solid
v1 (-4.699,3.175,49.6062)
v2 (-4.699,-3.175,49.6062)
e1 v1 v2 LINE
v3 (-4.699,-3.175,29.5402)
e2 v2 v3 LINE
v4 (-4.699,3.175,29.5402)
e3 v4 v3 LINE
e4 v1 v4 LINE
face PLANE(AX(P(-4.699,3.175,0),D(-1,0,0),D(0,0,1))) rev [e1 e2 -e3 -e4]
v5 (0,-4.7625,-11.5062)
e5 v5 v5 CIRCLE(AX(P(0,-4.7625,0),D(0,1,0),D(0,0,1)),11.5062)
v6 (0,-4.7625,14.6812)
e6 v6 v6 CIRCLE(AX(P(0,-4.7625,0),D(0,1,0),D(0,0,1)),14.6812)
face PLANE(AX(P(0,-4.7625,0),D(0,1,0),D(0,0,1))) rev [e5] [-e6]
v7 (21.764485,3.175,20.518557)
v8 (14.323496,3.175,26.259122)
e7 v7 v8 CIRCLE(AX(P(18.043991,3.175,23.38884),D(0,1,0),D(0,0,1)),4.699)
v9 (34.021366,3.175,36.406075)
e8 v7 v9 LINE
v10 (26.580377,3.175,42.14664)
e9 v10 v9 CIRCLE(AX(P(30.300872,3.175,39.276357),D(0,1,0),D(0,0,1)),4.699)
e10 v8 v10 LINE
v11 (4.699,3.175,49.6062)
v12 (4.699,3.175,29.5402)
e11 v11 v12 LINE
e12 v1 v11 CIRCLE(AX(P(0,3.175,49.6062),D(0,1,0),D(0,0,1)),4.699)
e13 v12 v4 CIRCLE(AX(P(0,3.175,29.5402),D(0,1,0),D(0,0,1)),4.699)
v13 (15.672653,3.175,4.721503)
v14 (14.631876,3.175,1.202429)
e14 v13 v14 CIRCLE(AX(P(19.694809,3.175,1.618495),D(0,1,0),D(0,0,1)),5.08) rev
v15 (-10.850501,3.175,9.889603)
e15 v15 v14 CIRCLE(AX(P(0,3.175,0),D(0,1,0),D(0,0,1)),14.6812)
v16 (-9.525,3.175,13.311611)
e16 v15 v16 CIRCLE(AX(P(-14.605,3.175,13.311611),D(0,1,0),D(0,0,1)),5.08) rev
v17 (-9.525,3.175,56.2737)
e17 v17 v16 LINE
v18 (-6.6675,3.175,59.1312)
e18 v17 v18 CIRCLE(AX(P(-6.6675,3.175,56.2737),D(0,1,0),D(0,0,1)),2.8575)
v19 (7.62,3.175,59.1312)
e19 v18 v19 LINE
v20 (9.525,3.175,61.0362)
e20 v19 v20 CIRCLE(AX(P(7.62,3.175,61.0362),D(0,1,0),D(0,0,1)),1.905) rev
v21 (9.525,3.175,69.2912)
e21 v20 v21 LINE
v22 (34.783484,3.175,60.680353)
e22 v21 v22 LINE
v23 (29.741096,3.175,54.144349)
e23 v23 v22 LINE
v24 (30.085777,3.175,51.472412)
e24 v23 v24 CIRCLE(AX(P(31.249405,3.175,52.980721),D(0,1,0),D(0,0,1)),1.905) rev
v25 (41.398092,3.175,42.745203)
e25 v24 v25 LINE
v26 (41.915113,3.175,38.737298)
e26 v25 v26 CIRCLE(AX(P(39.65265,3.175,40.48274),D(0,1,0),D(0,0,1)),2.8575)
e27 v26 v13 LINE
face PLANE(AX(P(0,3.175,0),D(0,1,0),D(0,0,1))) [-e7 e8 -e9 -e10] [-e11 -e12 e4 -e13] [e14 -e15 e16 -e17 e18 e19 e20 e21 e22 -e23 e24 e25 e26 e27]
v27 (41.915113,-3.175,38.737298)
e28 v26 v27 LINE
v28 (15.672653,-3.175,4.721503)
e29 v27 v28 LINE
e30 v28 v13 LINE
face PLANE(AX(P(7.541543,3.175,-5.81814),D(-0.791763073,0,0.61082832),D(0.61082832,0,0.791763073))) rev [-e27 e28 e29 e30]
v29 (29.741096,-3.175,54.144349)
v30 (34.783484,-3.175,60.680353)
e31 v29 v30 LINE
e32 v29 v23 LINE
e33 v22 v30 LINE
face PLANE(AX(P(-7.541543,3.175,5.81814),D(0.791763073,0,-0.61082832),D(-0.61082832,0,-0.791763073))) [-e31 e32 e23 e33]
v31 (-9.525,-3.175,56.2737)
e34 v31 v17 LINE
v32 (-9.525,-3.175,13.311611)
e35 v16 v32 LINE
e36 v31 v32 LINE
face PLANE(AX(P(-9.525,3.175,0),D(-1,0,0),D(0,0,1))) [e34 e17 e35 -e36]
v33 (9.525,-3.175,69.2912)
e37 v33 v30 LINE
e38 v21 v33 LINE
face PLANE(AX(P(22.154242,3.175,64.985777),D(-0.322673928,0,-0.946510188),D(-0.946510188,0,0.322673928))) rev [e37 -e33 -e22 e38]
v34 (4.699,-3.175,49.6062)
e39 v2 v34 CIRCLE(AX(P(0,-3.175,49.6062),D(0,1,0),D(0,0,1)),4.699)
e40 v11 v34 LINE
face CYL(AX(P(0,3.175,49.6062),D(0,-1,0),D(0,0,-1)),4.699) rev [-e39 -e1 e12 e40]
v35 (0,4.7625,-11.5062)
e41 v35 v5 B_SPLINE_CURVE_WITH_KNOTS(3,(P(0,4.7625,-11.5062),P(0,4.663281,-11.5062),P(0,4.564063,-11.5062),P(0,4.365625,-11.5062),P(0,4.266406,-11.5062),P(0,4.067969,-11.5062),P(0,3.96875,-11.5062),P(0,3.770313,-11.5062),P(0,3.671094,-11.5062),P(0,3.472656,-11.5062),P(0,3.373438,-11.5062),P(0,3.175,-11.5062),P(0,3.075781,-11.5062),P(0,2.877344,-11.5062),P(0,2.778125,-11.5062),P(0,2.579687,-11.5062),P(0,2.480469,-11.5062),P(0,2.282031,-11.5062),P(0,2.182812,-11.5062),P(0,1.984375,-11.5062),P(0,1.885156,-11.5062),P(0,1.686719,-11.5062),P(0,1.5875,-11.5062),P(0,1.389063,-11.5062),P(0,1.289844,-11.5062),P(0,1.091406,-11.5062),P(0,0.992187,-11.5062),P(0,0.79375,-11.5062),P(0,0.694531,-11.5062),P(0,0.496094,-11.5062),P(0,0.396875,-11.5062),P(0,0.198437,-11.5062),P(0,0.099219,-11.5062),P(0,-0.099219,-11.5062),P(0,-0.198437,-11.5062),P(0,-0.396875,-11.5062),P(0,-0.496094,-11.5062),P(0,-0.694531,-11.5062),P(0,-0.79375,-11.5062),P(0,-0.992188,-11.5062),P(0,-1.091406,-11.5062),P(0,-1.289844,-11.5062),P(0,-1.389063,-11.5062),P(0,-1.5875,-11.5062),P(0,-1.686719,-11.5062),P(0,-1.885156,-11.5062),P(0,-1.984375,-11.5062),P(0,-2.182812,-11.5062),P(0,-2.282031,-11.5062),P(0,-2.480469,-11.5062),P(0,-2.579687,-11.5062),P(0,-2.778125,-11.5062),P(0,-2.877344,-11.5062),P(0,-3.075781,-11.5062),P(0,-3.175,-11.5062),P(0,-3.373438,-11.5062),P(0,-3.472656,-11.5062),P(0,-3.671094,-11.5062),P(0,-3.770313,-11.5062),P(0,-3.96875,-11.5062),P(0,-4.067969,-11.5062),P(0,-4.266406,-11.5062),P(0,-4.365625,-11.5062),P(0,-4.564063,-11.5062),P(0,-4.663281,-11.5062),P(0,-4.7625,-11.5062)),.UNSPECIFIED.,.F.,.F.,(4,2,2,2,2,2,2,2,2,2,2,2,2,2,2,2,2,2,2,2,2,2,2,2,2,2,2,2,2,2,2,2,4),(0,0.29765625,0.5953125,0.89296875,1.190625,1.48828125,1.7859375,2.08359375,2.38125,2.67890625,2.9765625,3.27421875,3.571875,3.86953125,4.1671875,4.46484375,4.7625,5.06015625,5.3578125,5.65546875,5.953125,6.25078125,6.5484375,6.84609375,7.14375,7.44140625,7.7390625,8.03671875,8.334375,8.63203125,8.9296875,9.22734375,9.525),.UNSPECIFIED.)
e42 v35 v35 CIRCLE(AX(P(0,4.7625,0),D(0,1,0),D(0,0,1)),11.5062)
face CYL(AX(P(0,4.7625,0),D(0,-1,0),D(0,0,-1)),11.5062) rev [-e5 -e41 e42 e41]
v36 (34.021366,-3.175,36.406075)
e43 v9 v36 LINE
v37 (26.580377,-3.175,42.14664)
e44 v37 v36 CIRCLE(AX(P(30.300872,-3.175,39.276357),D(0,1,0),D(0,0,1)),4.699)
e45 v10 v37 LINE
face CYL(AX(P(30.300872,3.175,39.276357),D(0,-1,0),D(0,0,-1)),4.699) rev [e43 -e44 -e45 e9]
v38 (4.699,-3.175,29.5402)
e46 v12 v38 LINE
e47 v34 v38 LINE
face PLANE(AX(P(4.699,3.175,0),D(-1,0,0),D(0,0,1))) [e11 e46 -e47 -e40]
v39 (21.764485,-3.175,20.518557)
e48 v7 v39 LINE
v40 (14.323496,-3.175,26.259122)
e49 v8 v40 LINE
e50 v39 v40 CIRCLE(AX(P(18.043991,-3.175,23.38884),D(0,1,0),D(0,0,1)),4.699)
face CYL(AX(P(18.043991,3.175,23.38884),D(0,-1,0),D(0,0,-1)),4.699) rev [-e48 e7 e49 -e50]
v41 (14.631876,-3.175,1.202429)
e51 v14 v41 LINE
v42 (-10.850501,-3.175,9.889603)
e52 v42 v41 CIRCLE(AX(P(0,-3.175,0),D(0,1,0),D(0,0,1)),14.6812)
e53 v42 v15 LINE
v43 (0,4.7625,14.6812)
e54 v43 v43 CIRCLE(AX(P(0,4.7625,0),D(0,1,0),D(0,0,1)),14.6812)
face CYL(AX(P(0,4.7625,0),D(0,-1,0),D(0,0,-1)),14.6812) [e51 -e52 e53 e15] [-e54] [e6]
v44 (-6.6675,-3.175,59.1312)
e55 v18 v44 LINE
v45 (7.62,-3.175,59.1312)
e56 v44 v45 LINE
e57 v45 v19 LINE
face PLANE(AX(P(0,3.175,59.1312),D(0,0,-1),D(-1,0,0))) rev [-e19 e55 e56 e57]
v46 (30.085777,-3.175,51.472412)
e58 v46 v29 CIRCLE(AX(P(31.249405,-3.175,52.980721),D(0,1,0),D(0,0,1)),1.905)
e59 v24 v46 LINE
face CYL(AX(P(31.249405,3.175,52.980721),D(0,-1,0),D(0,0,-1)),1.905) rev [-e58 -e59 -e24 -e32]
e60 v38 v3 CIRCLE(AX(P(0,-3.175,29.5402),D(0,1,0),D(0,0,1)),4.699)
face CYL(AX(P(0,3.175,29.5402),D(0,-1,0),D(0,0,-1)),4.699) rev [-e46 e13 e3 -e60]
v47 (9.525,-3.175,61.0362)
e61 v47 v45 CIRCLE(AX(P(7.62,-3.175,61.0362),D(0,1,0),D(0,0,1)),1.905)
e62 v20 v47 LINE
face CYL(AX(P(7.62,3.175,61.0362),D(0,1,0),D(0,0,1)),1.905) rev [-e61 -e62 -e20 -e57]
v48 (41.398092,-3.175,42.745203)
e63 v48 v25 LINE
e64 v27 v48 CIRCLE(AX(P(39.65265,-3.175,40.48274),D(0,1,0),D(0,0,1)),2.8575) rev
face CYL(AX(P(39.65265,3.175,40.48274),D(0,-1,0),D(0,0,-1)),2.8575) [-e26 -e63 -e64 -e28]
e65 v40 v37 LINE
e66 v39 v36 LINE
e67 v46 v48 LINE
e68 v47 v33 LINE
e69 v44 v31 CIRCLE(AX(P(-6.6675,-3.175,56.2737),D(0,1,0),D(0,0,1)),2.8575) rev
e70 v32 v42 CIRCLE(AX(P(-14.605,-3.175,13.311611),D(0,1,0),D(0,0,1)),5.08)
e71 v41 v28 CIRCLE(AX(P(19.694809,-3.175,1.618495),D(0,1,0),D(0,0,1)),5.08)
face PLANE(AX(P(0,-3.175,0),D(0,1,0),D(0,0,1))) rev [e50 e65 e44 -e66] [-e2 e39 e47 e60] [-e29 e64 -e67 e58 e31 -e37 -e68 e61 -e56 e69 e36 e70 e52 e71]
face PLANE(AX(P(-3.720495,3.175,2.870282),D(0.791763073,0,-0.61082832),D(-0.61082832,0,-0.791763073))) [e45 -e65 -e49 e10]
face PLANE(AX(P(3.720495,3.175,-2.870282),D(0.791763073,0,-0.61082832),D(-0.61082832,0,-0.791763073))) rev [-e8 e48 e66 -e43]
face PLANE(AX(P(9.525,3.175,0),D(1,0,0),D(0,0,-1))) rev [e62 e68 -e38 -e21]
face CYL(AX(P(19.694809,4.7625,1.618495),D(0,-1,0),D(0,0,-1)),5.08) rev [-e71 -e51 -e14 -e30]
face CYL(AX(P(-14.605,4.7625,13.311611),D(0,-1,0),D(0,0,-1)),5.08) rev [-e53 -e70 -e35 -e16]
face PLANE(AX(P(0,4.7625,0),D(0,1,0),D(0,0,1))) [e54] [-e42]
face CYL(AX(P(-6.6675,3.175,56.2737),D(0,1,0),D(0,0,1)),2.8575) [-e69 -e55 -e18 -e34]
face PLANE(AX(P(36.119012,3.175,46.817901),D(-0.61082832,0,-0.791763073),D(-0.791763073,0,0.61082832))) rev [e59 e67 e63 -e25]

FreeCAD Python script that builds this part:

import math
import FreeCAD as App
import Part
import Sketcher
from FreeCAD import Vector
Q = App.Units.Quantity


def edges_at(feature, points):
    """Names of the edges that pass closest to the given points."""
    edges = feature.Shape.Edges
    near = lambda p: min(range(len(edges)), key=lambda i: edges[i].distToShape(Part.Vertex(*p))[0])
    return sorted({f"Edge{near(p) + 1}" for p in points})

doc = App.newDocument("Part")
params = doc.addObject("Spreadsheet::Sheet", "Params")
for row, (alias, value) in enumerate([
    ("sketch1_diameter", "1.156 in"),
    ("sketch1_diameter2", "0.906 in"),
    ("pad1_length", "0.375 in"),
    ("sketch2_height", "0.4 in"),
    ("sketch2_radius", "0.578 in"),
    ("sketch2_radius2", "0.185 in"),
    ("sketch2_length", "0.4 in"),
    ("sketch2_width", "0.75 in"),
    ("pad2_length", "0.25 in"),
    ("fillet_radius", "0.2 in"),
    ("fillet2_radius", "0.075 in"),
    ("fillet3_radius", "0.1125 in"),
], start=1):
    params.set(f"A{row}", alias)
    params.set(f"B{row}", "=" + value)
    params.setAlias(f"B{row}", alias)

body = doc.addObject("PartDesign::Body", "Body")

# Sketch on XZ plane
sketch1 = body.newObject("Sketcher::SketchObject", "Sketch")
sketch1.AttachmentSupport = (doc.getObject("XZ_Plane"), [""])
sketch1.MapMode = "FlatFace"
sketch1.addGeometry(Part.Circle(Vector(0, 0, 0), Vector(0, 0, 1), 15), False)
sketch1.addGeometry(Part.Circle(Vector(0, 0, 0), Vector(0, 0, 1), 12), False)
sketch1.addConstraint(Sketcher.Constraint("Coincident", 0, 3, -1, 1))
sketch1.addConstraint(Sketcher.Constraint("Coincident", 1, 3, -1, 1))
sketch1.addConstraint(Sketcher.Constraint("Diameter", 0, Q("1.156 in")))
sketch1.addConstraint(Sketcher.Constraint("Diameter", 1, Q("0.906 in")))
sketch1.setExpression("Constraints[2]", "Params.sketch1_diameter")
sketch1.setExpression("Constraints[3]", "Params.sketch1_diameter2")
pad1 = body.newObject("PartDesign::Pad", "Pad")
pad1.Profile = sketch1
pad1.setExpression("Length", "Params.pad1_length")
pad1.Midplane = True

# Sketch on XZ plane
sketch2 = body.newObject("Sketcher::SketchObject", "Sketch001")
sketch2.AttachmentSupport = (doc.getObject("XZ_Plane"), [""])
sketch2.MapMode = "FlatFace"
sketch2.addGeometry(Part.LineSegment(Vector(-9.5, 11.2, 0), Vector(-9.5, 59.1, 0)), False)
sketch2.addGeometry(Part.LineSegment(Vector(-9.5, 59.1, 0), Vector(9.5, 59.1, 0)), False)
sketch2.addGeometry(Part.LineSegment(Vector(9.5, 59.1, 0), Vector(9.5, 69.3, 0)), False)
sketch2.addGeometry(Part.LineSegment(Vector(9.5, 69.3, 0), Vector(34.8, 60.7, 0)), False)
sketch2.addGeometry(Part.LineSegment(Vector(34.8, 60.7, 0), Vector(28.6, 52.6, 0)), False)
sketch2.addGeometry(Part.LineSegment(Vector(28.6, 52.6, 0), Vector(36.1, 46.8, 0)), False)
sketch2.addGeometry(Part.LineSegment(Vector(36.1, 46.8, 0), Vector(43.7, 41, 0)), False)
sketch2.addGeometry(Part.LineSegment(Vector(43.7, 41, 0), Vector(14.4, 3, 0)), False)
sketch2.addGeometry(Part.ArcOfCircle(Part.Circle(Vector(0, 0, 0), Vector(0, 0, 1), 14.7), math.radians(12), math.radians(130)), False)
sketch2.addGeometry(Part.LineSegment(Vector(4.7, 29.5, 0), Vector(4.7, 49.6, 0)), False)
sketch2.addGeometry(Part.ArcOfCircle(Part.Circle(Vector(0, 49.6, 0), Vector(0, 0, 1), 4.7), math.radians(0), math.radians(180)), False)
sketch2.addGeometry(Part.LineSegment(Vector(-4.7, 49.6, 0), Vector(-4.7, 29.5, 0)), False)
sketch2.addGeometry(Part.ArcOfCircle(Part.Circle(Vector(0, 29.5, 0), Vector(0, 0, 1), 4.7), math.radians(180), math.radians(360)), False)
sketch2.addGeometry(Part.LineSegment(Vector(21.8, 20.5, 0), Vector(34, 36.4, 0)), False)
sketch2.addGeometry(Part.ArcOfCircle(Part.Circle(Vector(30.3, 39.3, 0), Vector(0, 0, 1), 4.7), math.radians(-38), math.radians(52)), False)
sketch2.addGeometry(Part.ArcOfCircle(Part.Circle(Vector(30.3, 39.3, 0), Vector(0, 0, 1), 4.7), math.radians(52), math.radians(142)), False)
sketch2.addGeometry(Part.LineSegment(Vector(26.6, 42.1, 0), Vector(14.3, 26.3, 0)), False)
sketch2.addGeometry(Part.ArcOfCircle(Part.Circle(Vector(18, 23.4, 0), Vector(0, 0, 1), 4.7), math.radians(142), math.radians(322)), False)
sketch2.addConstraint(Sketcher.Constraint("Coincident", 0, 2, 1, 1))
sketch2.addConstraint(Sketcher.Constraint("Coincident", 1, 2, 2, 1))
sketch2.addConstraint(Sketcher.Constraint("Coincident", 2, 2, 3, 1))
sketch2.addConstraint(Sketcher.Constraint("Coincident", 3, 2, 4, 1))
sketch2.addConstraint(Sketcher.Constraint("Coincident", 4, 2, 5, 1))
sketch2.addConstraint(Sketcher.Constraint("Coincident", 5, 2, 6, 1))
sketch2.addConstraint(Sketcher.Constraint("Coincident", 6, 2, 7, 1))
sketch2.addConstraint(Sketcher.Constraint("Coincident", 7, 2, 8, 1))
sketch2.addConstraint(Sketcher.Constraint("Coincident", 8, 2, 0, 1))
sketch2.addConstraint(Sketcher.Constraint("Tangent", 9, 2, 10, 1))
sketch2.addConstraint(Sketcher.Constraint("Tangent", 10, 2, 11, 1))
sketch2.addConstraint(Sketcher.Constraint("Tangent", 11, 2, 12, 1))
sketch2.addConstraint(Sketcher.Constraint("Tangent", 12, 2, 9, 1))
sketch2.addConstraint(Sketcher.Constraint("Tangent", 13, 2, 14, 1))
sketch2.addConstraint(Sketcher.Constraint("Tangent", 14, 2, 15, 1))
sketch2.addConstraint(Sketcher.Constraint("Tangent", 15, 2, 16, 1))
sketch2.addConstraint(Sketcher.Constraint("Tangent", 16, 2, 17, 1))
sketch2.addConstraint(Sketcher.Constraint("Tangent", 17, 2, 13, 1))
sketch2.addConstraint(Sketcher.Constraint("Vertical", 0))
sketch2.addConstraint(Sketcher.Constraint("Horizontal", 1))
sketch2.addConstraint(Sketcher.Constraint("Vertical", 2))
sketch2.addConstraint(Sketcher.Constraint("Vertical", 9))
sketch2.addConstraint(Sketcher.Constraint("Vertical", 11))
sketch2.addConstraint(Sketcher.Constraint("Coincident", 8, 3, -1, 1))
sketch2.addConstraint(Sketcher.Constraint("Equal", 12, 14))
sketch2.addConstraint(Sketcher.Constraint("Equal", 14, 15))
sketch2.addConstraint(Sketcher.Constraint("Equal", 15, 17))
sketch2.addConstraint(Sketcher.Constraint("PointOnObject", 10, 3, -2))
sketch2.addConstraint(Sketcher.Constraint("Perpendicular", 4, 5))
sketch2.addConstraint(Sketcher.Constraint("Parallel", 5, 6))
sketch2.addConstraint(Sketcher.Constraint("Perpendicular", 6, 7))
sketch2.addConstraint(Sketcher.Constraint("Parallel", 7, 13))
sketch2.addConstraint(Sketcher.Constraint("Equal", 5, 6))
sketch2.addConstraint(Sketcher.Constraint("DistanceY", 2, 1, 2, 2, Q("0.4 in")))
sketch2.addConstraint(Sketcher.Constraint("Radius", 8, Q("0.578 in")))
sketch2.addConstraint(Sketcher.Constraint("Radius", 10, Q("0.185 in")))
sketch2.addConstraint(Sketcher.Constraint("Distance", 4, Q("0.4 in")))
sketch2.addConstraint(Sketcher.Constraint("DistanceX", 1, 1, 1, 2, Q("0.75 in")))
sketch2.addConstraint(Sketcher.Constraint("DistanceY", 9, 1, 9, 2, Q("0.79 in")))
sketch2.addConstraint(Sketcher.Constraint("Distance", 13, Q("0.79 in")))
sketch2.addConstraint(Sketcher.Constraint("DistanceX", 9, 2, 1, 2, Q("0.19 in")))
sketch2.addConstraint(Sketcher.Constraint("Distance", 5, Q("0.375 in")))
sketch2.addConstraint(Sketcher.Constraint("DistanceY", -1, 1, 10, 3, Q("1.953 in")))
sketch2.addConstraint(Sketcher.Constraint("DistanceY", -1, 1, 0, 2, Q("2.328 in")))
sketch2.addConstraint(Sketcher.Constraint("DistanceY", -1, 1, 5, 2, Q("46.817901 mm")))
sketch2.addConstraint(Sketcher.Constraint("DistanceX", 4, 2, 13, 2, Q("5.443898 mm")))
sketch2.addConstraint(Sketcher.Constraint("Distance", 3, Q("26.685908 mm")))
sketch2.addConstraint(Sketcher.Constraint("Distance", 7, Q("47.959271 mm")))
sketch2.addConstraint(Sketcher.Constraint("DistanceY", -1, 1, 17, 3, Q("23.38884 mm")))
sketch2.addConstraint(Sketcher.Constraint("DistanceY", 14, 2, 5, 2, Q("3.821049 mm")))
sketch2.setExpression("Constraints[33]", "Params.sketch2_height")
sketch2.setExpression("Constraints[34]", "Params.sketch2_radius")
sketch2.setExpression("Constraints[35]", "Params.sketch2_radius2")
sketch2.setExpression("Constraints[36]", "Params.sketch2_length")
sketch2.setExpression("Constraints[37]", "Params.sketch2_width")
pad2 = body.newObject("PartDesign::Pad", "Pad001")
pad2.Profile = sketch2
pad2.setExpression("Length", "Params.pad2_length")
pad2.Midplane = True
doc.recompute()

fillet = body.newObject("PartDesign::Fillet", "Fillet")
fillet.Base = (pad2, edges_at(pad2, [(14.366, 0, 3.027), (-9.525, 0, 11.172)]))
fillet.setExpression("Radius", "Params.fillet_radius")
doc.recompute()

fillet2 = body.newObject("PartDesign::Fillet", "Fillet001")
fillet2.Base = (fillet, edges_at(fillet, [(28.577, 0, 52.636), (9.525, 0, 59.131)]))
fillet2.setExpression("Radius", "Params.fillet2_radius")
doc.recompute()

fillet3 = body.newObject("PartDesign::Fillet", "Fillet002")
fillet3.Base = (fillet2, edges_at(fillet2, [(43.661, 0, 41), (-9.525, 0, 59.131)]))
fillet3.setExpression("Radius", "Params.fillet3_radius")

doc.recompute()
